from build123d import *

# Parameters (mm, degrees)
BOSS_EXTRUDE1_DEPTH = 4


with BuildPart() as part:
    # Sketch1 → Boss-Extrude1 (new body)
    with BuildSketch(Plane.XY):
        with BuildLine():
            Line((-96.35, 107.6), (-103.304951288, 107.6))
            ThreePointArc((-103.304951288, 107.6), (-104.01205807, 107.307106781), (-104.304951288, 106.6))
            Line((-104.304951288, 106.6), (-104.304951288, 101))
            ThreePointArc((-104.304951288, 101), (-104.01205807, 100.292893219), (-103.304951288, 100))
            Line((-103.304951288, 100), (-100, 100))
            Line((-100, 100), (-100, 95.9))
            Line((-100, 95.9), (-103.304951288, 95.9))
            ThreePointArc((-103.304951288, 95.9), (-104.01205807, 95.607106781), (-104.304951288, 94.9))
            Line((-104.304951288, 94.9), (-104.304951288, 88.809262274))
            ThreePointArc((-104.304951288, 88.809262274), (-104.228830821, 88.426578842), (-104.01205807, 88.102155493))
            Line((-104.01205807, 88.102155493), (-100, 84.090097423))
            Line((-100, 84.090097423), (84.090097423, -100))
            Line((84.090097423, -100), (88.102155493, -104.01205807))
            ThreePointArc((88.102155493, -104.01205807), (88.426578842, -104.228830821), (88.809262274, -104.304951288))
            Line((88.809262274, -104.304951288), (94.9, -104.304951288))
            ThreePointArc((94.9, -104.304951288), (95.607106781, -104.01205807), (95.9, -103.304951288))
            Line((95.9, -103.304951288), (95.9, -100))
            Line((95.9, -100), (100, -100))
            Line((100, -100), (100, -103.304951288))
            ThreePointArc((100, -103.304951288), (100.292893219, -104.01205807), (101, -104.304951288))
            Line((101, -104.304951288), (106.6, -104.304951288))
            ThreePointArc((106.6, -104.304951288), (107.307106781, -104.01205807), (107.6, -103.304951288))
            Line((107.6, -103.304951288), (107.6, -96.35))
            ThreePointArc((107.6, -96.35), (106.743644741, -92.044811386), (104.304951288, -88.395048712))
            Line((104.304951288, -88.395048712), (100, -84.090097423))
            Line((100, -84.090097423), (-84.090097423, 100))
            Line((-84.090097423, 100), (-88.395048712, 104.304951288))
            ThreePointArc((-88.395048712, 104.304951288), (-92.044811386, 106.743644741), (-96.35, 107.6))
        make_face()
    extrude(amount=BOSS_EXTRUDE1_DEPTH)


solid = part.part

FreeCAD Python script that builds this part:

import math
import FreeCAD as App
import Part
import Sketcher
from FreeCAD import Vector
Q = App.Units.Quantity

doc = App.newDocument("Part")
body = doc.addObject("PartDesign::Body", "Body")

# Sketch on XY plane
sketch1 = doc.addObject("Sketcher::SketchObject", "Sketch")
body.addObject(sketch1)
sketch1.AttachmentSupport = (doc.XY_Plane, [""])
sketch1.MapMode = "FlatFace"
sketch1.addGeometry([
    Part.LineSegment(Vector(-96.3, 107.6, 0), Vector(-103.3, 107.6, 0)),  # 0
    Part.ArcOfCircle(Part.Circle(Vector(-103.3, 106.6, 0), Vector(0, 0, 1), 1), math.radians(90), math.radians(180)),  # 1
    Part.LineSegment(Vector(-104.3, 106.6, 0), Vector(-104.3, 101, 0)),  # 2
    Part.ArcOfCircle(Part.Circle(Vector(-103.3, 101, 0), Vector(0, 0, 1), 1), math.radians(180), math.radians(270)),  # 3
    Part.LineSegment(Vector(-103.3, 100, 0), Vector(-100, 100, 0)),  # 4
    Part.LineSegment(Vector(-100, 100, 0), Vector(-100, 95.9, 0)),  # 5
    Part.LineSegment(Vector(-100, 95.9, 0), Vector(-103.3, 95.9, 0)),  # 6
    Part.ArcOfCircle(Part.Circle(Vector(-103.3, 94.9, 0), Vector(0, 0, 1), 1), math.radians(90), math.radians(180)),  # 7
    Part.LineSegment(Vector(-104.3, 94.9, 0), Vector(-104.3, 88.8, 0)),  # 8
    Part.ArcOfCircle(Part.Circle(Vector(-103.3, 88.8, 0), Vector(0, 0, 1), 1), math.radians(180), math.radians(225)),  # 9
    Part.LineSegment(Vector(-104, 88.1, 0), Vector(88.1, -104, 0)),  # 10
    Part.ArcOfCircle(Part.Circle(Vector(88.8, -103.3, 0), Vector(0, 0, 1), 1), math.radians(-135), math.radians(-90)),  # 11
    Part.LineSegment(Vector(88.8, -104.3, 0), Vector(94.9, -104.3, 0)),  # 12
    Part.ArcOfCircle(Part.Circle(Vector(94.9, -103.3, 0), Vector(0, 0, 1), 1), math.radians(-90), math.radians(0)),  # 13
    Part.LineSegment(Vector(95.9, -103.3, 0), Vector(95.9, -100, 0)),  # 14
    Part.LineSegment(Vector(95.9, -100, 0), Vector(100, -100, 0)),  # 15
    Part.LineSegment(Vector(100, -100, 0), Vector(100, -103.3, 0)),  # 16
    Part.ArcOfCircle(Part.Circle(Vector(101, -103.3, 0), Vector(0, 0, 1), 1), math.radians(180), math.radians(270)),  # 17
    Part.LineSegment(Vector(101, -104.3, 0), Vector(106.6, -104.3, 0)),  # 18
    Part.ArcOfCircle(Part.Circle(Vector(106.6, -103.3, 0), Vector(0, 0, 1), 1), math.radians(-90), math.radians(0)),  # 19
    Part.LineSegment(Vector(107.6, -103.3, 0), Vector(107.6, -96.3, 0)),  # 20
    Part.ArcOfCircle(Part.Circle(Vector(96.4, -96.3, 0), Vector(0, 0, 1), 11.2), math.radians(0), math.radians(45)),  # 21
    Part.LineSegment(Vector(104.3, -88.4, 0), Vector(100, -84.1, 0)),  # 22
    Part.LineSegment(Vector(100, -84.1, 0), Vector(-84.1, 100, 0)),  # 23
    Part.LineSegment(Vector(-84.1, 100, 0), Vector(-88.4, 104.3, 0)),  # 24
    Part.ArcOfCircle(Part.Circle(Vector(-96.3, 96.4, 0), Vector(0, 0, 1), 11.2), math.radians(45), math.radians(90)),  # 25
], False)
sketch1.addConstraint([
    Sketcher.Constraint("Tangent", 0, 2, 1, 1),
    Sketcher.Constraint("Tangent", 1, 2, 2, 1),
    Sketcher.Constraint("Tangent", 2, 2, 3, 1),
    Sketcher.Constraint("Tangent", 3, 2, 4, 1),
    Sketcher.Constraint("Coincident", 4, 2, 5, 1),
    Sketcher.Constraint("Coincident", 5, 2, 6, 1),
    Sketcher.Constraint("Tangent", 6, 2, 7, 1),
    Sketcher.Constraint("Tangent", 7, 2, 8, 1),
    Sketcher.Constraint("Tangent", 8, 2, 9, 1),
    Sketcher.Constraint("Tangent", 9, 2, 10, 1),
    Sketcher.Constraint("Tangent", 10, 2, 11, 1),
    Sketcher.Constraint("Tangent", 11, 2, 12, 1),
    Sketcher.Constraint("Tangent", 12, 2, 13, 1),
    Sketcher.Constraint("Tangent", 13, 2, 14, 1),
    Sketcher.Constraint("Coincident", 14, 2, 15, 1),
    Sketcher.Constraint("Coincident", 15, 2, 16, 1),
    Sketcher.Constraint("Tangent", 16, 2, 17, 1),
    Sketcher.Constraint("Tangent", 17, 2, 18, 1),
    Sketcher.Constraint("Tangent", 18, 2, 19, 1),
    Sketcher.Constraint("Tangent", 19, 2, 20, 1),
    Sketcher.Constraint("Tangent", 20, 2, 21, 1),
    Sketcher.Constraint("Tangent", 21, 2, 22, 1),
    Sketcher.Constraint("Coincident", 22, 2, 23, 1),
    Sketcher.Constraint("Coincident", 23, 2, 24, 1),
    Sketcher.Constraint("Tangent", 24, 2, 25, 1),
    Sketcher.Constraint("Tangent", 25, 2, 0, 1),
    Sketcher.Constraint("Horizontal", 0),
    Sketcher.Constraint("Vertical", 2),
    Sketcher.Constraint("Horizontal", 4),
    Sketcher.Constraint("Vertical", 5),
    Sketcher.Constraint("Horizontal", 6),
    Sketcher.Constraint("Vertical", 8),
    Sketcher.Constraint("Horizontal", 12),
    Sketcher.Constraint("Vertical", 14),
    Sketcher.Constraint("Horizontal", 15),
    Sketcher.Constraint("Vertical", 16),
    Sketcher.Constraint("Horizontal", 18),
    Sketcher.Constraint("Vertical", 20),
    Sketcher.Constraint("Equal", 1, 3),
    Sketcher.Constraint("Equal", 3, 7),
    Sketcher.Constraint("Equal", 7, 9),
    Sketcher.Constraint("Equal", 9, 11),
    Sketcher.Constraint("Equal", 11, 13),
    Sketcher.Constraint("Equal", 13, 17),
    Sketcher.Constraint("Equal", 17, 19),
    Sketcher.Constraint("Equal", 21, 25),
    Sketcher.Constraint("Symmetric", 21, 3, 25, 3, -1, 1),
    Sketcher.Constraint("Symmetric", 4, 2, 15, 2, -1, 1),
    Sketcher.Constraint("Parallel", 10, 22),
    Sketcher.Constraint("Parallel", 22, 23),
    Sketcher.Constraint("Parallel", 23, 24),
    Sketcher.Constraint("Horizontal", 13, 3, 17, 3),
    Sketcher.Constraint("Horizontal", 4, 2, 23, 2),
    Sketcher.Constraint("Vertical", 3, 3, 7, 3),
    Sketcher.Constraint("Vertical", 16, 2, 22, 2),
    Sketcher.Constraint("Equal", 18, 2),
    Sketcher.Constraint("Equal", 15, 5),
    Sketcher.Constraint("Equal", 12, 8),
    Sketcher.Constraint("Equal", 22, 24),
    Sketcher.Constraint("Radius", 1, Q("1 mm")),
    Sketcher.Constraint("Radius", 21, Q("11.25 mm")),
    Sketcher.Constraint("DistanceX", 15, 1, 15, 2, Q("4.1 mm")),
    Sketcher.Constraint("DistanceX", 18, 1, 18, 2, Q("5.6 mm")),
    Sketcher.Constraint("DistanceY", -1, 1, 3, 3, Q("101 mm")),
    Sketcher.Constraint("DistanceX", 0, 2, 0, 1, Q("6.954951 mm")),
    Sketcher.Constraint("DistanceX", 12, 1, 12, 2, Q("6.090738 mm")),
])
pad1 = doc.addObject("PartDesign::Pad", "Pad")
body.addObject(pad1)
pad1.Profile = sketch1
pad1.Length = 4

doc.recompute()
